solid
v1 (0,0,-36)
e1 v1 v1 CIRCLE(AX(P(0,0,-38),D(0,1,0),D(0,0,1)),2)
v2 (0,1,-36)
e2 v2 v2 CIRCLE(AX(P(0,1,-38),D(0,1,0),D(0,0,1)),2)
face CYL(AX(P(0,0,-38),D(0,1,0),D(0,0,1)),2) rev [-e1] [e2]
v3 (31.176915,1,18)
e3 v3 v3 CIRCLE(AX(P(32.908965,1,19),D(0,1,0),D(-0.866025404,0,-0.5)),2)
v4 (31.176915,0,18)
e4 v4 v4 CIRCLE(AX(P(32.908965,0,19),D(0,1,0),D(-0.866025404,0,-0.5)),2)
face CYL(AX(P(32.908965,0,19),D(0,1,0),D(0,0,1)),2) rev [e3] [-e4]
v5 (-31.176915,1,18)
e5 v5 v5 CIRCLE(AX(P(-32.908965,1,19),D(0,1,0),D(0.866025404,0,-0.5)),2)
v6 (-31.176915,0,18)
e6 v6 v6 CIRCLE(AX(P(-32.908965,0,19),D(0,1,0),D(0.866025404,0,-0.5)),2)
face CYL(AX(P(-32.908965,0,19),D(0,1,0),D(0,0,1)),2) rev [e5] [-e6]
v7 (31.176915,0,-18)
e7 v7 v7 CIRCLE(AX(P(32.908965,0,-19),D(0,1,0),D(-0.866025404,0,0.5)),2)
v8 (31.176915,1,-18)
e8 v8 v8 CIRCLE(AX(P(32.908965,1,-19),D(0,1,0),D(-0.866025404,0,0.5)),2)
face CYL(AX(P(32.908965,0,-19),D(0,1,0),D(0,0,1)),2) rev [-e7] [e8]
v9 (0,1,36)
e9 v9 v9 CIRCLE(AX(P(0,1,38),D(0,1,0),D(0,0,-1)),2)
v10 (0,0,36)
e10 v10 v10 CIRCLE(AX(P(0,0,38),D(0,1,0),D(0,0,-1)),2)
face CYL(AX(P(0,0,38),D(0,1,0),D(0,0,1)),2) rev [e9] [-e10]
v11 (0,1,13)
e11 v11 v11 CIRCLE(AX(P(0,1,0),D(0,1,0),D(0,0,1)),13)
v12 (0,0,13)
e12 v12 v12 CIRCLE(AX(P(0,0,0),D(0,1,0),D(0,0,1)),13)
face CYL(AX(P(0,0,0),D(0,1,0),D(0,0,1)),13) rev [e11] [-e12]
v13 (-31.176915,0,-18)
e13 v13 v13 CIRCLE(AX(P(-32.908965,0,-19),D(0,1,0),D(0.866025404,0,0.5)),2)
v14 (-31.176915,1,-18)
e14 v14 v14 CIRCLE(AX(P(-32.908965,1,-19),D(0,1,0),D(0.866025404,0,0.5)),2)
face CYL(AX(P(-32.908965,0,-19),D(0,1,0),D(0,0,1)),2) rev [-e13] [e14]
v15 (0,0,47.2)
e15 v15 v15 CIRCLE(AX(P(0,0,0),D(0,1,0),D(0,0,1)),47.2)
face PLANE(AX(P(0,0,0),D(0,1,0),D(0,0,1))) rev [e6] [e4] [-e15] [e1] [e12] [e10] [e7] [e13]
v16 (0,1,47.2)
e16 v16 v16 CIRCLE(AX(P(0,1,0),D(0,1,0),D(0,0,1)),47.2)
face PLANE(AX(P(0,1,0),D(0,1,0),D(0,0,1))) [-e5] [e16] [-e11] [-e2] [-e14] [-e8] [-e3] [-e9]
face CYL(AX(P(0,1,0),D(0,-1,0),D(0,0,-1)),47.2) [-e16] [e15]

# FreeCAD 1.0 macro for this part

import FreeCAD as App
import Part
import Sketcher
from FreeCAD import Vector
Q = App.Units.Quantity

doc = App.newDocument("Part")
body = doc.addObject("PartDesign::Body", "Body")

sketch1 = doc.addObject("Sketcher::SketchObject", "Sketch")
body.addObject(sketch1)
sketch1.AttachmentSupport = (doc.XZ_Plane, [""])
sketch1.MapMode = "FlatFace"
sketch1.addGeometry(Part.Circle(Vector(0, 0, 0), Vector(0, 0, 1), 47), False)
sketch1.addConstraint([
    Sketcher.Constraint("Coincident", 0, 3, -1, 1),
    Sketcher.Constraint("Diameter", 0, Q("94.4 mm")),
])
pad1 = doc.addObject("PartDesign::Pad", "Pad")
body.addObject(pad1)
pad1.Profile = sketch1
pad1.Length = 1
pad1.Reversed = True

sketch2 = doc.addObject("Sketcher::SketchObject", "Sketch001")
body.addObject(sketch2)
sketch2.AttachmentSupport = (doc.XZ_Plane, [""])
sketch2.MapMode = "FlatFace"
sketch2.AttachmentOffset = App.Placement(Vector(0, 0, -1), App.Rotation())
sketch2.addGeometry(Part.Circle(Vector(0, 0, 0), Vector(0, 0, 1), 13), False)
sketch2.addConstraint([
    Sketcher.Constraint("Coincident", 0, 3, -1, 1),
    Sketcher.Constraint("Diameter", 0, Q("26 mm")),
])
pocket1 = doc.addObject("PartDesign::Pocket", "Pocket")
body.addObject(pocket1)
pocket1.Profile = sketch2
pocket1.Length = 1
pocket1.Reversed = True

sketch3 = doc.addObject("Sketcher::SketchObject", "Sketch002")
body.addObject(sketch3)
sketch3.AttachmentSupport = (doc.XZ_Plane, [""])
sketch3.MapMode = "FlatFace"
sketch3.AttachmentOffset = App.Placement(Vector(0, 0, -1), App.Rotation())
sketch3.addGeometry(Part.Circle(Vector(0, -38, 0), Vector(0, 0, 1), 2), False)
sketch3.addConstraint([
    Sketcher.Constraint("PointOnObject", 0, 3, -2),
    Sketcher.Constraint("Diameter", 0, Q("4 mm")),
    Sketcher.Constraint("DistanceY", 0, 3, -1, 1, Q("38 mm")),
])
pocket2 = doc.addObject("PartDesign::Pocket", "Pocket001")
body.addObject(pocket2)
pocket2.Profile = sketch3
pocket2.Type = "ThroughAll"
pocket2.Reversed = True
doc.recompute()

polarpattern = doc.addObject("PartDesign::PolarPattern", "PolarPattern")
body.addObject(polarpattern)
polarpattern.Originals = [pocket2]
polarpattern.Axis = (doc.Y_Axis, [""])
polarpattern.Angle = 360
polarpattern.Occurrences = 6
body.Tip = polarpattern

doc.recompute()
